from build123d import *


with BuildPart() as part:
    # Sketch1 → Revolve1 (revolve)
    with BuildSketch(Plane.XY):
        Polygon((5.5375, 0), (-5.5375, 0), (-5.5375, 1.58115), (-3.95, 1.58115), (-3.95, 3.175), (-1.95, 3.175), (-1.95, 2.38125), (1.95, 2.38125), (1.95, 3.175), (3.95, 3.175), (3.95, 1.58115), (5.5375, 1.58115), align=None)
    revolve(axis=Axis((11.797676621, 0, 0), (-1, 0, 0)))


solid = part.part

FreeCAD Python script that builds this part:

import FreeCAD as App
import Part
import Sketcher

doc = App.newDocument("Part")
body = doc.addObject("PartDesign::Body", "Body")

sketch1 = doc.addObject("Sketcher::SketchObject", "Sketch")
body.addObject(sketch1)
sketch1.AttachmentSupport = (doc.XY_Plane, [""])
sketch1.MapMode = "FlatFace"
sketch1.addGeometry([
    Part.LineSegment(App.Vector(-5.5375, 0, 0), App.Vector(5.5375, 0, 0)),
    Part.LineSegment(App.Vector(5.5375, 0, 0), App.Vector(5.5375, 1.58115, 0)),
    Part.LineSegment(App.Vector(5.5375, 1.58115, 0), App.Vector(3.95, 1.58115, 0)),
    Part.LineSegment(App.Vector(3.95, 1.58115, 0), App.Vector(3.95, 3.175, 0)),
    Part.LineSegment(App.Vector(3.95, 3.175, 0), App.Vector(1.95, 3.175, 0)),
    Part.LineSegment(App.Vector(1.95, 3.175, 0), App.Vector(1.95, 2.38125, 0)),
    Part.LineSegment(App.Vector(1.95, 2.38125, 0), App.Vector(-1.95, 2.38125, 0)),
    Part.LineSegment(App.Vector(-1.95, 2.38125, 0), App.Vector(-1.95, 3.175, 0)),
    Part.LineSegment(App.Vector(-1.95, 3.175, 0), App.Vector(-3.95, 3.175, 0)),
    Part.LineSegment(App.Vector(-3.95, 3.175, 0), App.Vector(-3.95, 1.58115, 0)),
    Part.LineSegment(App.Vector(-3.95, 1.58115, 0), App.Vector(-5.5375, 1.58115, 0)),
    Part.LineSegment(App.Vector(-5.5375, 1.58115, 0), App.Vector(-5.5375, 0, 0)),
], False)
sketch1.addConstraint([
    Sketcher.Constraint("Coincident", 0, 2, 1, 1),
    Sketcher.Constraint("Coincident", 1, 2, 2, 1),
    Sketcher.Constraint("Coincident", 2, 2, 3, 1),
    Sketcher.Constraint("Coincident", 3, 2, 4, 1),
    Sketcher.Constraint("Coincident", 4, 2, 5, 1),
    Sketcher.Constraint("Coincident", 5, 2, 6, 1),
    Sketcher.Constraint("Coincident", 6, 2, 7, 1),
    Sketcher.Constraint("Coincident", 7, 2, 8, 1),
    Sketcher.Constraint("Coincident", 8, 2, 9, 1),
    Sketcher.Constraint("Coincident", 9, 2, 10, 1),
    Sketcher.Constraint("Coincident", 10, 2, 11, 1),
    Sketcher.Constraint("Coincident", 11, 2, 0, 1),
    Sketcher.Constraint("Horizontal", 0),
    Sketcher.Constraint("Vertical", 1),
    Sketcher.Constraint("Horizontal", 2),
    Sketcher.Constraint("Vertical", 3),
    Sketcher.Constraint("Horizontal", 4),
    Sketcher.Constraint("Vertical", 5),
    Sketcher.Constraint("Horizontal", 6),
    Sketcher.Constraint("Vertical", 7),
    Sketcher.Constraint("Horizontal", 8),
    Sketcher.Constraint("Vertical", 9),
    Sketcher.Constraint("Horizontal", 10),
    Sketcher.Constraint("Vertical", 11),
    Sketcher.Constraint("Symmetric", 0, 2, 11, 2, -1, 1),
    Sketcher.Constraint("Symmetric", 4, 2, 7, 2, -2),
    Sketcher.Constraint("Symmetric", 2, 2, 9, 2, -2),
    Sketcher.Constraint("DistanceX", 4, 2, 4, 1, 2.0),
    Sketcher.Constraint("DistanceX", 6, 2, 6, 1, 3.9),
    Sketcher.Constraint("DistanceX", 0, 1, 0, 2, 11.075),
    Sketcher.Constraint("DistanceY", -1, 1, 3, 2, 3.175),
    Sketcher.Constraint("DistanceY", 1, 1, 1, 2, 1.58115),
    Sketcher.Constraint("DistanceY", 5, 2, 5, 1, 0.79375),
])
revolution = doc.addObject("PartDesign::Revolution", "Revolution")
body.addObject(revolution)
revolution.Profile = sketch1
revolution.ReferenceAxis = (sketch1, ["H_Axis"])
revolution.Angle = 360

doc.recompute()
